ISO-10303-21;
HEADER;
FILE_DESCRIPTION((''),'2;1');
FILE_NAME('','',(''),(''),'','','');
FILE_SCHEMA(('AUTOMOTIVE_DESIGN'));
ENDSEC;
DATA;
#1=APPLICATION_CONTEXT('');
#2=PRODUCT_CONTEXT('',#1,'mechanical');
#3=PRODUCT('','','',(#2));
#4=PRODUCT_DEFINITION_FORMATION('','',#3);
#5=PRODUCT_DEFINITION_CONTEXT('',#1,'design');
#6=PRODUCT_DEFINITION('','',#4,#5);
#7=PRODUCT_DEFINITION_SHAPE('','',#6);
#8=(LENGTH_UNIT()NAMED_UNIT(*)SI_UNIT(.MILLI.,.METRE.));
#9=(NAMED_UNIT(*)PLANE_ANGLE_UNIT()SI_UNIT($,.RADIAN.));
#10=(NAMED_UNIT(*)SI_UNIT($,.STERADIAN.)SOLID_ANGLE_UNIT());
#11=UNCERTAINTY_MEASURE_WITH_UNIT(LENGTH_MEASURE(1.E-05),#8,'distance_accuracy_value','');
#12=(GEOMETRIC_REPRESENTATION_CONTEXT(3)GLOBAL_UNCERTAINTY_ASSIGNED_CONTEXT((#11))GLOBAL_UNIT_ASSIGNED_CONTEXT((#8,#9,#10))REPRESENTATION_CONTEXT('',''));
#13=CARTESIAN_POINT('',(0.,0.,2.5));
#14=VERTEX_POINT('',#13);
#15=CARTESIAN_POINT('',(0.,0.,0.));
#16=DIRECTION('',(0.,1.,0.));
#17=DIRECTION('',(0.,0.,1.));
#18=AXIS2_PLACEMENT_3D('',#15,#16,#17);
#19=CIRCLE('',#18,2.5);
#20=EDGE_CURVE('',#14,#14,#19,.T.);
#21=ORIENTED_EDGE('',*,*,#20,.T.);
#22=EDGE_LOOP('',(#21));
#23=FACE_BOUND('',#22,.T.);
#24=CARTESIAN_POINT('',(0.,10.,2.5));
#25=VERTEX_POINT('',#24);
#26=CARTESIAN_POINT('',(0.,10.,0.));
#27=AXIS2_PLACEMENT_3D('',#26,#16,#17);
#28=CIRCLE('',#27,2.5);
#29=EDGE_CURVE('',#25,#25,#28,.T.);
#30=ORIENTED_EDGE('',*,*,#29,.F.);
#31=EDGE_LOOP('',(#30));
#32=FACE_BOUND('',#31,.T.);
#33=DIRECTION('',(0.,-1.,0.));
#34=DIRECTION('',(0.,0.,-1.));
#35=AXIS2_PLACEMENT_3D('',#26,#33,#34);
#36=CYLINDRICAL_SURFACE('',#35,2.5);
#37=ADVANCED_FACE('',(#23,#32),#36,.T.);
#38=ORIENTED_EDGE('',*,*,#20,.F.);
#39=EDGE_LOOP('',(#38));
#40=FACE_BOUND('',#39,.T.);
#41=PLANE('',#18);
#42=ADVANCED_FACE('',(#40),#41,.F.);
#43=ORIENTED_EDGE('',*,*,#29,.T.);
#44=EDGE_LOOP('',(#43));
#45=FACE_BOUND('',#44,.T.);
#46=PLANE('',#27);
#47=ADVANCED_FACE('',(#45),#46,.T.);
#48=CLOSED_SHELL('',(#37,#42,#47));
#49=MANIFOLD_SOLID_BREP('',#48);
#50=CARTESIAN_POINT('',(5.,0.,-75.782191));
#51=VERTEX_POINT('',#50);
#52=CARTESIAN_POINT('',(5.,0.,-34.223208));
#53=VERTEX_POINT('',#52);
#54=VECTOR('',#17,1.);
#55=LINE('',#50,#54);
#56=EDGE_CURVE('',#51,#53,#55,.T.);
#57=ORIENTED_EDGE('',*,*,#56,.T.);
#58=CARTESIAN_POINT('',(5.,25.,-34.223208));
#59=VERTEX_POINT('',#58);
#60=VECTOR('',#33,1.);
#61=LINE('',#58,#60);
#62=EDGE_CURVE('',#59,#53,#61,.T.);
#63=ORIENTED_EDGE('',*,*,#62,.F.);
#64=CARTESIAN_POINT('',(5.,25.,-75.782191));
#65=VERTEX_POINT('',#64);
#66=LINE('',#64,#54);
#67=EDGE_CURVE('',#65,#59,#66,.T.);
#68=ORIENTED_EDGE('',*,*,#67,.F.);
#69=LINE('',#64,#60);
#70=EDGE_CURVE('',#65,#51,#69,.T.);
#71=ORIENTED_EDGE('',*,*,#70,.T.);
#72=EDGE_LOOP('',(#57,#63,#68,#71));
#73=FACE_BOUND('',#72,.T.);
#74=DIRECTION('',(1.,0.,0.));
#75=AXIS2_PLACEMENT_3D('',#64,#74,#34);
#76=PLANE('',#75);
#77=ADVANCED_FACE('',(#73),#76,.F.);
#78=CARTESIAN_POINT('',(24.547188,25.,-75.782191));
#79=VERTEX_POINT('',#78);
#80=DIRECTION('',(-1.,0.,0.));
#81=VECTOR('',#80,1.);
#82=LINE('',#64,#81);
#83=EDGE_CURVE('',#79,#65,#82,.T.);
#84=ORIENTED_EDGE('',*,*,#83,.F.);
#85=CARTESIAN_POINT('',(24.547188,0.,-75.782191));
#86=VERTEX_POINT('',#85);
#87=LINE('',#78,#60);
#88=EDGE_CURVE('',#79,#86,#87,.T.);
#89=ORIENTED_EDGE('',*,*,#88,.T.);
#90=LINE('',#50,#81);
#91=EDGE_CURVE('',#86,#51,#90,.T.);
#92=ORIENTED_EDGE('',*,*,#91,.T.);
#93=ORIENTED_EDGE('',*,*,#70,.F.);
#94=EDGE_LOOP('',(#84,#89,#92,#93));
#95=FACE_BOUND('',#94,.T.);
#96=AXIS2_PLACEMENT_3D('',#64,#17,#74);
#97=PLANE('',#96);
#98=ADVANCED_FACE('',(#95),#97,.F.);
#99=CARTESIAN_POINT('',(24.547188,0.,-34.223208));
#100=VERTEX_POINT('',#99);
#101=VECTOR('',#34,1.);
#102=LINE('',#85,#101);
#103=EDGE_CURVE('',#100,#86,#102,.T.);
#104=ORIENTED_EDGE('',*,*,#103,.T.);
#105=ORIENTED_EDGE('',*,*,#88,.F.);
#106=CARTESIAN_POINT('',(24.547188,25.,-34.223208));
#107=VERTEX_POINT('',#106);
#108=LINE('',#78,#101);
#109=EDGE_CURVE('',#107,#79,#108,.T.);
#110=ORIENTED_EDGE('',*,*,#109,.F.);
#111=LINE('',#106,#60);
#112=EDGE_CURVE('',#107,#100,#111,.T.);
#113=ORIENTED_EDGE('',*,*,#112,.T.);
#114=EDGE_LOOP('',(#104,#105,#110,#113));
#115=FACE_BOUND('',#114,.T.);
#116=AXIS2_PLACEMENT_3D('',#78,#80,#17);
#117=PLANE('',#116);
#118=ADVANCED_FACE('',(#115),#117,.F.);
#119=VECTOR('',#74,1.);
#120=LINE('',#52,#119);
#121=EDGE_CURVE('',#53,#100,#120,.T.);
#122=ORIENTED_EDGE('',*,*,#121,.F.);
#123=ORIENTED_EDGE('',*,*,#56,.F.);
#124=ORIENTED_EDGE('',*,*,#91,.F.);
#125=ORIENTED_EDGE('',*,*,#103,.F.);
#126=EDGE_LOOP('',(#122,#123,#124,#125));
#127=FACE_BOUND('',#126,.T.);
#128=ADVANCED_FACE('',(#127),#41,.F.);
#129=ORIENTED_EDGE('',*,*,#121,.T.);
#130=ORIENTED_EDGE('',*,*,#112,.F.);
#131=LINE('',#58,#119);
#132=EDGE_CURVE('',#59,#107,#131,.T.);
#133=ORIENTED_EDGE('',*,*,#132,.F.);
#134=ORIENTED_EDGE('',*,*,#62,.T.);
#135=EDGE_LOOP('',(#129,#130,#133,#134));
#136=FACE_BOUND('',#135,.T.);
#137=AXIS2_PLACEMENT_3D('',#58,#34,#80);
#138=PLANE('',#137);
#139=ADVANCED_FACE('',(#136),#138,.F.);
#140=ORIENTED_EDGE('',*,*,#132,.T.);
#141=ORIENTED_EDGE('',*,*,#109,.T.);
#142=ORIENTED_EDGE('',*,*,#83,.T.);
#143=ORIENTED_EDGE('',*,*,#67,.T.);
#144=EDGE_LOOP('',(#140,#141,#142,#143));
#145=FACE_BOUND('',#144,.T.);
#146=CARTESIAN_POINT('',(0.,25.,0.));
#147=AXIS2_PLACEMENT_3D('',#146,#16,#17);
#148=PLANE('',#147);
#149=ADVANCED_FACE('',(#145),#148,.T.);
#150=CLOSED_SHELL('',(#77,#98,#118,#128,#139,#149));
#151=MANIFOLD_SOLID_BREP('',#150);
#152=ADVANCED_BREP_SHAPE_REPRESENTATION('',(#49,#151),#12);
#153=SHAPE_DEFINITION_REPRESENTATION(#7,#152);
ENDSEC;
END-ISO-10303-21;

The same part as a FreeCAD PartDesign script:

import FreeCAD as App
import Part
import Sketcher

doc = App.newDocument("Part")
body = doc.addObject("PartDesign::Body", "Body")

# Sketch on XZ plane
sketch1 = body.newObject("Sketcher::SketchObject", "Sketch")
sketch1.AttachmentSupport = (doc.getObject("XZ_Plane"), [""])
sketch1.MapMode = "FlatFace"
sketch1.addGeometry(Part.Circle(App.Vector(0, 0, 0), App.Vector(0, 0, 1), 2.5), False)
sketch1.addConstraint([
    Sketcher.Constraint("Coincident", 0, 3, -1, 1),
    Sketcher.Constraint("Diameter", 0, 5.0),
])
pad1 = body.newObject("PartDesign::Pad", "Pad")
pad1.Profile = sketch1
pad1.Length = 10
pad1.Reversed = True
body2 = doc.addObject("PartDesign::Body", "Body001")

# Sketch on XZ plane
sketch2 = body2.newObject("Sketcher::SketchObject", "Sketch001")
sketch2.AttachmentSupport = (doc.getObject("XZ_Plane001"), [""])
sketch2.MapMode = "FlatFace"
sketch2.addGeometry([
    Part.LineSegment(App.Vector(5, -76, 0), App.Vector(5, -34, 0)),
    Part.LineSegment(App.Vector(5, -34, 0), App.Vector(25, -34, 0)),
    Part.LineSegment(App.Vector(25, -34, 0), App.Vector(25, -76, 0)),
    Part.LineSegment(App.Vector(25, -76, 0), App.Vector(5, -76, 0)),
], False)
sketch2.addConstraint([
    Sketcher.Constraint("Coincident", 0, 2, 1, 1),
    Sketcher.Constraint("Coincident", 1, 2, 2, 1),
    Sketcher.Constraint("Coincident", 2, 2, 3, 1),
    Sketcher.Constraint("Coincident", 3, 2, 0, 1),
    Sketcher.Constraint("Vertical", 0),
    Sketcher.Constraint("Horizontal", 1),
    Sketcher.Constraint("Vertical", 2),
    Sketcher.Constraint("Horizontal", 3),
    Sketcher.Constraint("DistanceX", -1, 1, 0, 2, 5.0),
    Sketcher.Constraint("DistanceX", 1, 1, 1, 2, 19.547188),
    Sketcher.Constraint("DistanceY", 0, 1, 0, 2, 41.558983),
    Sketcher.Constraint("DistanceY", 0, 2, -1, 1, 34.223208),
])
pad2 = body2.newObject("PartDesign::Pad", "Pad001")
pad2.Profile = sketch2
pad2.Length = 25
pad2.Reversed = True

doc.recompute()
